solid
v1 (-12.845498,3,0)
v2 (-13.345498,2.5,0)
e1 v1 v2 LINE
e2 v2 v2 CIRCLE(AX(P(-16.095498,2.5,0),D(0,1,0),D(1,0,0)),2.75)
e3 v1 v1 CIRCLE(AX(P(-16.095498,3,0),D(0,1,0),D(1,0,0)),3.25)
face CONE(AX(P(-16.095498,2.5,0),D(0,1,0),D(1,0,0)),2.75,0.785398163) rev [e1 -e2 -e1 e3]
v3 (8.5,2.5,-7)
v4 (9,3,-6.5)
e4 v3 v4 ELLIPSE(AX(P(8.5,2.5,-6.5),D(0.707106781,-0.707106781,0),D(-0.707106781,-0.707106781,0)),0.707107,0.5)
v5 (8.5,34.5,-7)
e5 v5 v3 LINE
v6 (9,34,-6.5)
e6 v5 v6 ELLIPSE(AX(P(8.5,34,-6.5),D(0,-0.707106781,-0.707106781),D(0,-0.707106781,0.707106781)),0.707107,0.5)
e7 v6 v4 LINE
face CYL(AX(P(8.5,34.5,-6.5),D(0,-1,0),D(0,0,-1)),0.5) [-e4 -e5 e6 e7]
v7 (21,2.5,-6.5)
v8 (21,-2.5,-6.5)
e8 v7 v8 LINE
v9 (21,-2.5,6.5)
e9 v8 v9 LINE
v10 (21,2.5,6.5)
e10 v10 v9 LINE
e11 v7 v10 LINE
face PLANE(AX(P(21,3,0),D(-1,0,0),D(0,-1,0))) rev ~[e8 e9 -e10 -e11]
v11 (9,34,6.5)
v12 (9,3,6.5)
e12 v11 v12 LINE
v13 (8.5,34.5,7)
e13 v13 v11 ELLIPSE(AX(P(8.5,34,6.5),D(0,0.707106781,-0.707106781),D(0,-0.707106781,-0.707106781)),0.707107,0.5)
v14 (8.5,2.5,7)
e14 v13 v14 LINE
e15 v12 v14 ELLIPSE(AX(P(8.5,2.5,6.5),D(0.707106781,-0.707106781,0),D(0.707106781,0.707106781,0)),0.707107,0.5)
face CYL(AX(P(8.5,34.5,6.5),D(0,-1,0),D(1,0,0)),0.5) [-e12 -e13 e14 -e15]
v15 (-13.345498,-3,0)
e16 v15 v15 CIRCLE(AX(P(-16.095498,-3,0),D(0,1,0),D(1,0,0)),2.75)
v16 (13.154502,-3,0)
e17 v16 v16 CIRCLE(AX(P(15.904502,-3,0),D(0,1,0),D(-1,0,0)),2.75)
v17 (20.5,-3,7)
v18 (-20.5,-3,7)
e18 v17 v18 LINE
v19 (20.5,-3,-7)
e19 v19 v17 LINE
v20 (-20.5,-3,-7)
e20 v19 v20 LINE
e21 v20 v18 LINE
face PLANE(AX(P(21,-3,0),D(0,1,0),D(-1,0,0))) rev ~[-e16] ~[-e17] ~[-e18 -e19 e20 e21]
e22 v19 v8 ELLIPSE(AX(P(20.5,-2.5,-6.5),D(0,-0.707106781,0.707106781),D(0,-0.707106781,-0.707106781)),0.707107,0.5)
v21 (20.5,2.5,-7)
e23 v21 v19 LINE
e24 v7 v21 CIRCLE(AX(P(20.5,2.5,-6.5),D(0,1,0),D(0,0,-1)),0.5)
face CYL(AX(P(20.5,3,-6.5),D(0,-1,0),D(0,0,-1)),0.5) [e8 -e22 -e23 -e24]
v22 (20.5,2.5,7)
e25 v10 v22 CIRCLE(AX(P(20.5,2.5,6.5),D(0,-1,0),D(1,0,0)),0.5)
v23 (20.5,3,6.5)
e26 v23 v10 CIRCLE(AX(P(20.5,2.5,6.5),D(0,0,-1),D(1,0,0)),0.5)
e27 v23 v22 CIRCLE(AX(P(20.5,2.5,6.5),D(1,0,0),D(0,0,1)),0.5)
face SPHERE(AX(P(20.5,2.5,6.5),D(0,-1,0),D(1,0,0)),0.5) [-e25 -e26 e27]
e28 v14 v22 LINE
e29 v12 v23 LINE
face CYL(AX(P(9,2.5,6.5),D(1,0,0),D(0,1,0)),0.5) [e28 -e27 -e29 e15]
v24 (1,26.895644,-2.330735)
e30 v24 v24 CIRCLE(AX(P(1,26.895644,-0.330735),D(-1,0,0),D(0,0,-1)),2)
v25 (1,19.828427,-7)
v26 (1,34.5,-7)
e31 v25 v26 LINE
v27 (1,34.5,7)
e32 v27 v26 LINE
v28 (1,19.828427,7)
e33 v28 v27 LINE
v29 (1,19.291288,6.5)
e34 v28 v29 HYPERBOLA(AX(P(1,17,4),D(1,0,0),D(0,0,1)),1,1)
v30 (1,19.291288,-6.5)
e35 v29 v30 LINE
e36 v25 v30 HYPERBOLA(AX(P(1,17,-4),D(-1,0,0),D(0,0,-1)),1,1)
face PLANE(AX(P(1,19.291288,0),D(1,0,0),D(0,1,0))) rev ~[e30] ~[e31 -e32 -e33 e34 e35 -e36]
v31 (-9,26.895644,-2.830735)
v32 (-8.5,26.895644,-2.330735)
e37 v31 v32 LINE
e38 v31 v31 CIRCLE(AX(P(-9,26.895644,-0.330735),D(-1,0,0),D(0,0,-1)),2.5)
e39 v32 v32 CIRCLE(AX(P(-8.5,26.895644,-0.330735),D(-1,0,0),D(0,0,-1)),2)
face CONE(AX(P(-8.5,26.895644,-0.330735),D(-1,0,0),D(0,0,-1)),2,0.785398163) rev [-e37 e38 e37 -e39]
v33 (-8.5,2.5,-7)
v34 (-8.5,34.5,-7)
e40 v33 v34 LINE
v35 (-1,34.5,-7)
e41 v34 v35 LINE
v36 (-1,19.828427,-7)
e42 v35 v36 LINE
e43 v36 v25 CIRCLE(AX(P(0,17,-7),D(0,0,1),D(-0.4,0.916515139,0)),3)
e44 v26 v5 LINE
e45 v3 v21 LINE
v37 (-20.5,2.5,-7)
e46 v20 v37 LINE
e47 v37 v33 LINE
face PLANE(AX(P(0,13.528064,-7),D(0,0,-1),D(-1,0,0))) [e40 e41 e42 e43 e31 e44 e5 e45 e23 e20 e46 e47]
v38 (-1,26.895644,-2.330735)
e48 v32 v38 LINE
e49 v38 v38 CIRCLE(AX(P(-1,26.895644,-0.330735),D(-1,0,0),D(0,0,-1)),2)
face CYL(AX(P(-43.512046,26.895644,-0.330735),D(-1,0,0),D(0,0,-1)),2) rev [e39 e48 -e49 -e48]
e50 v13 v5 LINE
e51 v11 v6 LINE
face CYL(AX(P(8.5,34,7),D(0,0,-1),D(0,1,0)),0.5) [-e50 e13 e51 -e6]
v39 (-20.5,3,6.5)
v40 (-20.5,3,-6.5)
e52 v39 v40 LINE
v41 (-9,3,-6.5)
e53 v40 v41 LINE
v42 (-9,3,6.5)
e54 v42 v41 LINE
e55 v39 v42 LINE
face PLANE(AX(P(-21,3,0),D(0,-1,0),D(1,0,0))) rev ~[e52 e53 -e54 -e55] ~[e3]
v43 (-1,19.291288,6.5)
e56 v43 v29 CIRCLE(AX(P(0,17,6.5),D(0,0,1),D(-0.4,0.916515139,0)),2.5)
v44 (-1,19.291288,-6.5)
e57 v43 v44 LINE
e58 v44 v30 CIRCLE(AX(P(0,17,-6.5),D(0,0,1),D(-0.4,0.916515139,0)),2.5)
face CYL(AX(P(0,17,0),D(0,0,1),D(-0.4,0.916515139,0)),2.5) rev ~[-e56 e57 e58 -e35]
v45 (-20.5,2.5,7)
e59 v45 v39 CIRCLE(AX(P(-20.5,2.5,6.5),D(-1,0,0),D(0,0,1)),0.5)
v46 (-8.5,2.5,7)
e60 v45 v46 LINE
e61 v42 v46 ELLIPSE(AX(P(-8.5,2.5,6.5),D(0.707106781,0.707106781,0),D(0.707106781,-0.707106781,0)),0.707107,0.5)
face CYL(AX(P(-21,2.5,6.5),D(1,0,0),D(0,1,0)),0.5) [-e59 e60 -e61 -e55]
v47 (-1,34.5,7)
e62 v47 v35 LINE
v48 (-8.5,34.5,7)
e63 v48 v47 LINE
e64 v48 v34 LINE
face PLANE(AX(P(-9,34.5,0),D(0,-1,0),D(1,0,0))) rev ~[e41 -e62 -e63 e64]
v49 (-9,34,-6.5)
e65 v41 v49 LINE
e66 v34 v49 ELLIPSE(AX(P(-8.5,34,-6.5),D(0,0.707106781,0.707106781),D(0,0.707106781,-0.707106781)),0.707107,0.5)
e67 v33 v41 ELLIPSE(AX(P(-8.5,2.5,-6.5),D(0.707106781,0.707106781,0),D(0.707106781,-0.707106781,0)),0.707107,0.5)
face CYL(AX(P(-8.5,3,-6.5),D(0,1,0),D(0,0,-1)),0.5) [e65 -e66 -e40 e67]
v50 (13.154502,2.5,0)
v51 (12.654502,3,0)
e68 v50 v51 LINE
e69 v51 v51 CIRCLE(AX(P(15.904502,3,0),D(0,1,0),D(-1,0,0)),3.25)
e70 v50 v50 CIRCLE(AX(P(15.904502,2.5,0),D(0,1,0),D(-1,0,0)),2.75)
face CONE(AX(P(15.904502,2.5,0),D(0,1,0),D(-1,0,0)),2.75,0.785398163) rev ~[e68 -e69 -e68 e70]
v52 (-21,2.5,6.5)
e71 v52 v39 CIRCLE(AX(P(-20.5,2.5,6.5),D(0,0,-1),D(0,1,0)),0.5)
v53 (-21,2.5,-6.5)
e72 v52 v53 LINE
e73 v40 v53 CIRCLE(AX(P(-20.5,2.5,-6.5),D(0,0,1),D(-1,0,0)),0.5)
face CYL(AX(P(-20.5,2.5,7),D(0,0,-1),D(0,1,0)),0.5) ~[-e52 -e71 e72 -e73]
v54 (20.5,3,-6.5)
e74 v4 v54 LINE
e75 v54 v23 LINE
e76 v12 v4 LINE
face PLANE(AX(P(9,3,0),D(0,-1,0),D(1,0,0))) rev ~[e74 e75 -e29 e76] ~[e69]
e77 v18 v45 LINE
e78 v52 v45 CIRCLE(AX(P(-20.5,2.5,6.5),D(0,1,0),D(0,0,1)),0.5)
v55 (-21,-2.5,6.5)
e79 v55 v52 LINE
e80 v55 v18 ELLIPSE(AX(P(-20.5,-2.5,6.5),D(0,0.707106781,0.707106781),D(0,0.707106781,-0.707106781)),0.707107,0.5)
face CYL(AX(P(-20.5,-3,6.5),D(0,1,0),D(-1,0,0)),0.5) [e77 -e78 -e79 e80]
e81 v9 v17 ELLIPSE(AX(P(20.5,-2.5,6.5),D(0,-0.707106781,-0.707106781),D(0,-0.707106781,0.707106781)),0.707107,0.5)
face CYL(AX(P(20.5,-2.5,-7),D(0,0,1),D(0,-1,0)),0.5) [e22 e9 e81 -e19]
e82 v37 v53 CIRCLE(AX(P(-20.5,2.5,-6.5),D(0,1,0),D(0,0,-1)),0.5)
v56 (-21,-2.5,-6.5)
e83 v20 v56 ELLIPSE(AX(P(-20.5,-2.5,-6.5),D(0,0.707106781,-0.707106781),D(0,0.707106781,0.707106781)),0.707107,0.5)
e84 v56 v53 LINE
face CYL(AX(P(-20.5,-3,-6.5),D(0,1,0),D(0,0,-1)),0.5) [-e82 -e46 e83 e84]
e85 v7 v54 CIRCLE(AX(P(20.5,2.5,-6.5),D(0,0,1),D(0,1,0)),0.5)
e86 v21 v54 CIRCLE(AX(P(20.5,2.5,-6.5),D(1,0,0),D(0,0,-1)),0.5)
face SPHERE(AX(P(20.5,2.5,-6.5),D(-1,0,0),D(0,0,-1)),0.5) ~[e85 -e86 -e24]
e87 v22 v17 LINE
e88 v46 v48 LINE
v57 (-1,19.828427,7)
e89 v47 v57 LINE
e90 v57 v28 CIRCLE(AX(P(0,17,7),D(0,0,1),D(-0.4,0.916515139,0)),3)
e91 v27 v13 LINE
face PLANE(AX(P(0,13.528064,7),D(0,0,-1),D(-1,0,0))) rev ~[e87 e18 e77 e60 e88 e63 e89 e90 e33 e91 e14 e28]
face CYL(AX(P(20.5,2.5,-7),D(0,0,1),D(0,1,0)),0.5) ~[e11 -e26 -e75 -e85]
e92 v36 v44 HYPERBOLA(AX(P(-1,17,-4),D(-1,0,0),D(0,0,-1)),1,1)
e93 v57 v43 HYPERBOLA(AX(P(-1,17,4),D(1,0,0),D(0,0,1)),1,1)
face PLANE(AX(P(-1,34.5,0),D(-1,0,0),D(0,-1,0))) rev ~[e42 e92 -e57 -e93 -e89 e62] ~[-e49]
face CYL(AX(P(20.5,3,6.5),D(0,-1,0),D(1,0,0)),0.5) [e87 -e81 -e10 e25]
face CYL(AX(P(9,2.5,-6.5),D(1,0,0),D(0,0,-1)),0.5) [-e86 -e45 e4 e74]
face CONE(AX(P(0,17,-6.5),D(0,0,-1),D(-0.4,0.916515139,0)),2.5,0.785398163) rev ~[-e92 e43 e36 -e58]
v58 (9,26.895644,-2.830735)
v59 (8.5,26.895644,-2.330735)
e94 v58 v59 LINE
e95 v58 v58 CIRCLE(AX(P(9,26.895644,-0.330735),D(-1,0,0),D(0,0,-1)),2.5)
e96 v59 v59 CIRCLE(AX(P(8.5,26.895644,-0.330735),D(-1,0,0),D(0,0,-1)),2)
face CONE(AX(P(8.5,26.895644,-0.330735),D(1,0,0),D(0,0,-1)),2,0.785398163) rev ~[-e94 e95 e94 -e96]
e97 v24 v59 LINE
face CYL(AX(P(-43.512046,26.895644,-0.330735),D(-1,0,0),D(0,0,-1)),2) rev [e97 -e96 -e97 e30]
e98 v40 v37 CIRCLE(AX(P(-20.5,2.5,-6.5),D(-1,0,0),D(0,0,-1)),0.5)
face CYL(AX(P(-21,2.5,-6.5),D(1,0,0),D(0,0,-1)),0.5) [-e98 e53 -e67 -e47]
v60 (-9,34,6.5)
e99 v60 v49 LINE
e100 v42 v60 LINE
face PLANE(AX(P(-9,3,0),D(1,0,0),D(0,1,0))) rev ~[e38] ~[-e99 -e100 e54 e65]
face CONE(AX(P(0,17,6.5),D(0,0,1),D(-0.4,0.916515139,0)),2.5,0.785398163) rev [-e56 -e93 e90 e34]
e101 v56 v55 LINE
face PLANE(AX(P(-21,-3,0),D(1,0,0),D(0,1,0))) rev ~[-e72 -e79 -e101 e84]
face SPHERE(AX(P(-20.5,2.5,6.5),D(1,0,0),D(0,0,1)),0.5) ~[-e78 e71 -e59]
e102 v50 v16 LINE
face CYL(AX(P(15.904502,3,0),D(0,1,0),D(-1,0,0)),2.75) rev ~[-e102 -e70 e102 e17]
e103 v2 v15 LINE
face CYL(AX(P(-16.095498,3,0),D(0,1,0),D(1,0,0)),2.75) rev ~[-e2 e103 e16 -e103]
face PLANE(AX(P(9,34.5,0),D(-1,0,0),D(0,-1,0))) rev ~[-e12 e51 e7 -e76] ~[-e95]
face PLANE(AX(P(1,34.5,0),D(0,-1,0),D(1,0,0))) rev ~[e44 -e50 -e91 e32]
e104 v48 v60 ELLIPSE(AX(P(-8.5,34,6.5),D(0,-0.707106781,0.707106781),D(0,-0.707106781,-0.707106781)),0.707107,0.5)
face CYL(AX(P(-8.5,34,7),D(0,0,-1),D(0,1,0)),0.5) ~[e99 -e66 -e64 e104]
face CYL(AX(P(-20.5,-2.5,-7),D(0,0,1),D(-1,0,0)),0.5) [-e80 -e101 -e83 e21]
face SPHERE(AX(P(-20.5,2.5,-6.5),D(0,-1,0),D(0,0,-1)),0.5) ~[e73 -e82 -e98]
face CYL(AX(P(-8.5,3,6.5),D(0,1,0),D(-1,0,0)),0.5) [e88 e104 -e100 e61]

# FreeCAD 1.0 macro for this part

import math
import FreeCAD as App
import Part
import Sketcher


def edges_at(feature, points):
    """Names of the edges that pass closest to the given points."""
    edges = feature.Shape.Edges
    near = lambda p: min(range(len(edges)), key=lambda i: edges[i].distToShape(Part.Vertex(*p))[0])
    return sorted({f"Edge{near(p) + 1}" for p in points})

doc = App.newDocument("Part")
params = doc.addObject("Spreadsheet::Sheet", "Params")
for row, (alias, value) in enumerate([
    ("sketch1_radius", "2.5 mm"),
    ("sketch1_width", "42 mm"),
    ("sketch1_width2", "12 mm"),
    ("sketch1_width3", "8 mm"),
    ("sketch1_height", "6 mm"),
    ("pad1_length", "14 mm"),
    ("sketch2_diameter", "5.5 mm"),
    ("sketch3_diameter", "4 mm"),
    ("chamfer_size", "0.5 mm"),
    ("fillet_radius", "0.5 mm"),
], start=1):
    params.set(f"A{row}", alias)
    params.set(f"B{row}", "=" + value)
    params.setAlias(f"B{row}", alias)

body = doc.addObject("PartDesign::Body", "Body")

sketch1 = body.newObject("Sketcher::SketchObject", "Sketch")
sketch1.AttachmentSupport = (doc.getObject("XY_Plane"), [""])
sketch1.MapMode = "FlatFace"
sketch1.addGeometry([
    Part.LineSegment(App.Vector(-21, 3, 0), App.Vector(-21, -3, 0)),
    Part.LineSegment(App.Vector(-21, -3, 0), App.Vector(21, -3, 0)),
    Part.LineSegment(App.Vector(21, -3, 0), App.Vector(21, 3, 0)),
    Part.LineSegment(App.Vector(21, 3, 0), App.Vector(9, 3, 0)),
    Part.LineSegment(App.Vector(9, 3, 0), App.Vector(9, 34.5, 0)),
    Part.LineSegment(App.Vector(9, 34.5, 0), App.Vector(1, 34.5, 0)),
    Part.LineSegment(App.Vector(1, 34.5, 0), App.Vector(1, 19.291288, 0)),
    Part.ArcOfCircle(Part.Circle(App.Vector(0, 17, 0), App.Vector(0, 0, 1), 2.5), math.radians(113.578178), math.radians(426.421822)),
    Part.LineSegment(App.Vector(-1, 19.291288, 0), App.Vector(-1, 34.5, 0)),
    Part.LineSegment(App.Vector(-1, 34.5, 0), App.Vector(-9, 34.5, 0)),
    Part.LineSegment(App.Vector(-9, 34.5, 0), App.Vector(-9, 3, 0)),
    Part.LineSegment(App.Vector(-9, 3, 0), App.Vector(-21, 3, 0)),
], False)
sketch1.addConstraint([
    Sketcher.Constraint("Coincident", 0, 2, 1, 1),
    Sketcher.Constraint("Coincident", 1, 2, 2, 1),
    Sketcher.Constraint("Coincident", 2, 2, 3, 1),
    Sketcher.Constraint("Coincident", 3, 2, 4, 1),
    Sketcher.Constraint("Coincident", 4, 2, 5, 1),
    Sketcher.Constraint("Coincident", 5, 2, 6, 1),
    Sketcher.Constraint("Coincident", 6, 2, 7, 2),
    Sketcher.Constraint("Coincident", 7, 1, 8, 1),
    Sketcher.Constraint("Coincident", 8, 2, 9, 1),
    Sketcher.Constraint("Coincident", 9, 2, 10, 1),
    Sketcher.Constraint("Coincident", 10, 2, 11, 1),
    Sketcher.Constraint("Coincident", 11, 2, 0, 1),
    Sketcher.Constraint("Vertical", 0),
    Sketcher.Constraint("Horizontal", 1),
    Sketcher.Constraint("Vertical", 2),
    Sketcher.Constraint("Horizontal", 3),
    Sketcher.Constraint("Vertical", 4),
    Sketcher.Constraint("Horizontal", 5),
    Sketcher.Constraint("Vertical", 6),
    Sketcher.Constraint("Vertical", 8),
    Sketcher.Constraint("Horizontal", 9),
    Sketcher.Constraint("Vertical", 10),
    Sketcher.Constraint("Horizontal", 11),
    Sketcher.Constraint("Symmetric", 0, 2, 2, 2, -1, 1),
    Sketcher.Constraint("Symmetric", 6, 2, 7, 1, -2),
    Sketcher.Constraint("Symmetric", 4, 2, 9, 2, -2),
    Sketcher.Constraint("Horizontal", 3, 2, 10, 2),
    Sketcher.Constraint("Radius", 7, 2.5),
    Sketcher.Constraint("DistanceX", 1, 1, 1, 2, 42.0),
    Sketcher.Constraint("DistanceX", 3, 2, 3, 1, 12.0),
    Sketcher.Constraint("DistanceX", 5, 2, 5, 1, 8.0),
    Sketcher.Constraint("DistanceY", 0, 2, 0, 1, 6.0),
    Sketcher.Constraint("DistanceY", 4, 1, 4, 2, 31.5),
    Sketcher.Constraint("DistanceY", -1, 1, 7, 3, 17.0),
])
sketch1.setExpression("Constraints[27]", "Params.sketch1_radius")
sketch1.setExpression("Constraints[28]", "Params.sketch1_width")
sketch1.setExpression("Constraints[29]", "Params.sketch1_width2")
sketch1.setExpression("Constraints[30]", "Params.sketch1_width3")
sketch1.setExpression("Constraints[31]", "Params.sketch1_height")
pad1 = body.newObject("PartDesign::Pad", "Pad")
pad1.Profile = sketch1
pad1.setExpression("Length", "Params.pad1_length")
pad1.Midplane = True

sketch2 = body.newObject("Sketcher::SketchObject", "Sketch001")
sketch2.AttachmentSupport = (doc.getObject("XZ_Plane"), [""])
sketch2.MapMode = "FlatFace"
sketch2.AttachmentOffset = App.Placement(App.Vector(0, 0, -3), App.Rotation())
sketch2.addGeometry([
    Part.Circle(App.Vector(15.904502, 0, 0), App.Vector(0, 0, 1), 2.75),
    Part.Circle(App.Vector(-16.095498, 0, 0), App.Vector(0, 0, 1), 2.75),
], False)
sketch2.addConstraint([
    Sketcher.Constraint("Equal", 0, 1),
    Sketcher.Constraint("PointOnObject", 0, 3, -1),
    Sketcher.Constraint("PointOnObject", 1, 3, -1),
    Sketcher.Constraint("Diameter", 0, 5.5),
    Sketcher.Constraint("DistanceX", 1, 3, 0, 3, 32.0),
    Sketcher.Constraint("DistanceX", -1, 1, 0, 3, 15.904502),
])
sketch2.setExpression("Constraints[3]", "Params.sketch2_diameter")
pocket1 = body.newObject("PartDesign::Pocket", "Pocket")
pocket1.Profile = sketch2
pocket1.Type = "ThroughAll"
pocket1.Reversed = True

sketch3 = body.newObject("Sketcher::SketchObject", "Sketch002")
sketch3.AttachmentSupport = (doc.getObject("YZ_Plane"), [""])
sketch3.MapMode = "FlatFace"
sketch3.AttachmentOffset = App.Placement(App.Vector(0, 0, -1), App.Rotation())
sketch3.addGeometry(Part.Circle(App.Vector(26.895644, -0.330735, 0), App.Vector(0, 0, 1), 2), False)
sketch3.addConstraint([
    Sketcher.Constraint("Diameter", 0, 4.0),
    Sketcher.Constraint("DistanceX", -1, 1, 0, 3, 26.895644),
    Sketcher.Constraint("DistanceY", 0, 3, -1, 1, 0.330735),
])
sketch3.setExpression("Constraints[0]", "Params.sketch3_diameter")
pocket2 = body.newObject("PartDesign::Pocket", "Pocket001")
pocket2.Profile = sketch3
pocket2.Type = "ThroughAll"
pocket2.Midplane = True
doc.recompute()

chamfer = body.newObject("PartDesign::Chamfer", "Chamfer")
chamfer.Base = (pocket2, edges_at(pocket2, [
    (0, 14.5, -7),
    (0, 14.5, 7),
    (18.655, 3, 0),
    (-18.845, 3, 0),
    (-9, 26.896, 1.669),
    (9, 26.896, 1.669),
]))
chamfer.setExpression("Size", "Params.chamfer_size")
doc.recompute()

fillet = body.newObject("PartDesign::Fillet", "Fillet")
fillet.Base = (chamfer, edges_at(chamfer, [
    (-15, 3, 7),
    (9, 18.75, -7),
    (15, 3, -7),
    (-21, 0, 7),
    (21, 0, -7),
    (-21, 0, -7),
    (-15, 3, -7),
    (-9, 18.75, -7),
    (21, 0, 7),
    (9, 34.5, 0),
    (21, 3, 0),
    (21, -3, 0),
    (-21, -3, 0),
    (-21, 3, 0),
    (-9, 34.5, 0),
    (15, 3, 7),
    (9, 18.75, 7),
    (-9, 18.75, 7),
]))
fillet.setExpression("Radius", "Params.fillet_radius")

doc.recompute()
